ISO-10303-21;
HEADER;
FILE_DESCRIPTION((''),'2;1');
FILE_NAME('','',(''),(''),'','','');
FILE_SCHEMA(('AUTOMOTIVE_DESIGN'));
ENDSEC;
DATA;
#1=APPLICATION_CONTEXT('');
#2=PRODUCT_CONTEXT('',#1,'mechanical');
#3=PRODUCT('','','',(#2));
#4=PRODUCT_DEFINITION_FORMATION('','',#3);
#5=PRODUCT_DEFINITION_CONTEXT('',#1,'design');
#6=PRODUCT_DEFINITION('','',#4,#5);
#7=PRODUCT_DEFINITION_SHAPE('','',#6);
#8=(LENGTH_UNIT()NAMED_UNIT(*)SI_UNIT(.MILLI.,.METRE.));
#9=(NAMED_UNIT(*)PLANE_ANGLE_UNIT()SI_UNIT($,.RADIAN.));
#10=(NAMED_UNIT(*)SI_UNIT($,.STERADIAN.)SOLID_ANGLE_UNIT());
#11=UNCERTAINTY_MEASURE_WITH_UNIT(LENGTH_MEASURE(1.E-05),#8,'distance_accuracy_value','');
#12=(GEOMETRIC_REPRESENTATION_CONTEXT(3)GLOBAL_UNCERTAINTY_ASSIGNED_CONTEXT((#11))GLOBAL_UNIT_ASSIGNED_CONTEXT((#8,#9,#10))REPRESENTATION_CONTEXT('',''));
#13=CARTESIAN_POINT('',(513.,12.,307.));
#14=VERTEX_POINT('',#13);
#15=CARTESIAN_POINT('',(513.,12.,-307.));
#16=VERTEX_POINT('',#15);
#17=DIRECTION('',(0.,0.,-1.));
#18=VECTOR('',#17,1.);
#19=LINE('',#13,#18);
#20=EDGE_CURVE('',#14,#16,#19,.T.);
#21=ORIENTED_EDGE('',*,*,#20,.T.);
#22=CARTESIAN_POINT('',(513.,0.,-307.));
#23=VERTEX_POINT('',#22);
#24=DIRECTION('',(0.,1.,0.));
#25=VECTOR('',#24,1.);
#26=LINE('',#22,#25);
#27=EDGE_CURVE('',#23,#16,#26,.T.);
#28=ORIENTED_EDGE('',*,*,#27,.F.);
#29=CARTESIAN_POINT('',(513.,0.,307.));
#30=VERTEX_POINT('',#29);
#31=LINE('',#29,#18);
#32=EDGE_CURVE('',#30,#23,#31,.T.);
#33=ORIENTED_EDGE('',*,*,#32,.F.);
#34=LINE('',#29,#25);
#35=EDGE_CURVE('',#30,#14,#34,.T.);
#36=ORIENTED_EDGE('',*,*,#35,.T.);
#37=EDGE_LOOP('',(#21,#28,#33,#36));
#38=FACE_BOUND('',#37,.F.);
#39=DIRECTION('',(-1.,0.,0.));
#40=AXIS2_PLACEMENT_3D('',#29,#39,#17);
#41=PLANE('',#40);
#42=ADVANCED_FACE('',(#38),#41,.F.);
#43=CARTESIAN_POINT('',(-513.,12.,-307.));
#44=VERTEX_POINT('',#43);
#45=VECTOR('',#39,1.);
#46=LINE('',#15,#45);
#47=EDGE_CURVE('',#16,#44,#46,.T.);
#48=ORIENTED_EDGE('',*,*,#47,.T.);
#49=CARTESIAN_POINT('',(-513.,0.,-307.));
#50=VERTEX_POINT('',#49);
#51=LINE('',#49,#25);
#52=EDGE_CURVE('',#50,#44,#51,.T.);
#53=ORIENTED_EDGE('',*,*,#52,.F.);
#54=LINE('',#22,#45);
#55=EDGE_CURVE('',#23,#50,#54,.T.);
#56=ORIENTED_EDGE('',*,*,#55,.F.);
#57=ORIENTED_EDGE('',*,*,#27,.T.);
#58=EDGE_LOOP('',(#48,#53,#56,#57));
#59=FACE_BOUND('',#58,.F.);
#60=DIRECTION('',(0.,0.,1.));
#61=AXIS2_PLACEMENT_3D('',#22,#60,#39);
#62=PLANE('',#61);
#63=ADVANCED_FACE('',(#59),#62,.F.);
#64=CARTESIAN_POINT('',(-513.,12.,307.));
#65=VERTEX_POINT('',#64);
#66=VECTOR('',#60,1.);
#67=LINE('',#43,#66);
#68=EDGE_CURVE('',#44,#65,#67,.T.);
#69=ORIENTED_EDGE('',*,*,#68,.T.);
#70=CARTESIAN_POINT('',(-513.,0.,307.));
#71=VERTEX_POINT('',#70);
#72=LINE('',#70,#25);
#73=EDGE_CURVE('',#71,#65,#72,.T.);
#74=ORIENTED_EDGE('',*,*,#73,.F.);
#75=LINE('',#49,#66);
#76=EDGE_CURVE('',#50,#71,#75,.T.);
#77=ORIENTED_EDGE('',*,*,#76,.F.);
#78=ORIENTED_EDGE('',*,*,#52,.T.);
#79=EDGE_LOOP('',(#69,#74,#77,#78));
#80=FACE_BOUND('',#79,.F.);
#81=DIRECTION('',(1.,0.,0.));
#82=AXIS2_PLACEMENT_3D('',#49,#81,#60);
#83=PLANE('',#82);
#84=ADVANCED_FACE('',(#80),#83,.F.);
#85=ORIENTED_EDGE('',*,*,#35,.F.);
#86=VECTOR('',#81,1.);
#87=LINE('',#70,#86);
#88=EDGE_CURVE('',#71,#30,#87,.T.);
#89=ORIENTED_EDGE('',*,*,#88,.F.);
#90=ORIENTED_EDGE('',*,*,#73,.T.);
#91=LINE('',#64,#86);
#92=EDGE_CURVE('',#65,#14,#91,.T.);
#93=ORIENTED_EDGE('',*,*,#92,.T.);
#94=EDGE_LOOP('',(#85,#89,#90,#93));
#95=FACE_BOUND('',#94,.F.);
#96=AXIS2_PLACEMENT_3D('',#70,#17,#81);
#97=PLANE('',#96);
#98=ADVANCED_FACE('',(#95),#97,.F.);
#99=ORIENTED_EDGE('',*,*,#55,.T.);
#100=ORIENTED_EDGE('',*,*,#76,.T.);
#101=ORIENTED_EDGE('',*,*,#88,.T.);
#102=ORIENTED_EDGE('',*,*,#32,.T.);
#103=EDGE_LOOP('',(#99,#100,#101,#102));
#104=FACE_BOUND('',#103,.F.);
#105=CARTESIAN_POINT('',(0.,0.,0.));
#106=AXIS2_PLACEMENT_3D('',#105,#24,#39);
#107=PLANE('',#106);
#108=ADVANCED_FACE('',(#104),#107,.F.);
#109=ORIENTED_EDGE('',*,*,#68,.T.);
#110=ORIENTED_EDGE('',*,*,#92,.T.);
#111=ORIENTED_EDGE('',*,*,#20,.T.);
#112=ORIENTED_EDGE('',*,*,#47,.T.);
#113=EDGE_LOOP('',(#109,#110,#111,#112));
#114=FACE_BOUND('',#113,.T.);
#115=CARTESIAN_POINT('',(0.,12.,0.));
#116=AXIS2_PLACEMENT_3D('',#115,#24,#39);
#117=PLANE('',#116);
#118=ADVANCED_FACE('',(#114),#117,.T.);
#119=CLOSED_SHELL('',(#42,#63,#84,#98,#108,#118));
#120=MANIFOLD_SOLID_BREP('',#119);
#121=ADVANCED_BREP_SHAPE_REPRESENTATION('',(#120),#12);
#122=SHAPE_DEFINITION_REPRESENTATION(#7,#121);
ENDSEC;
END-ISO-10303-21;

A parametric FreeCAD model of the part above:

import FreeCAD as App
import Part
import Sketcher

V = App.Vector
Q = App.Units.Quantity


def add_polygon(sketch, points):
    """Adds a closed chain of lines whose ends are joined by coincident constraints."""
    first, n = sketch.GeometryCount, len(points)
    for a, b in zip(points, points[1:] + points[:1]):
        sketch.addGeometry(Part.LineSegment(App.Vector(*a, 0), App.Vector(*b, 0)), False)
    for i in range(n):
        sketch.addConstraint(Sketcher.Constraint("Coincident", first + i, 2, first + (i + 1) % n, 1))

doc = App.newDocument("Part")
body = doc.addObject("PartDesign::Body", "Body")

# Sketch on XZ plane
sketch1 = body.newObject("Sketcher::SketchObject", "Sketch")
sketch1.AttachmentSupport = (doc.getObject("XZ_Plane"), [""])
sketch1.MapMode = "FlatFace"
add_polygon(sketch1, [(-513, -307), (-513, 307), (513, 307), (513, -307)])  # lines 0-3
sketch1.addConstraint([
    Sketcher.Constraint("Vertical", 0),
    Sketcher.Constraint("Horizontal", 1),
    Sketcher.Constraint("Vertical", 2),
    Sketcher.Constraint("Horizontal", 3),
    Sketcher.Constraint("Symmetric", 0, 2, 2, 2, -1, 1),
    Sketcher.Constraint("DistanceX", 1, 1, 1, 2, Q("1026 mm")),
    Sketcher.Constraint("DistanceY", 0, 1, 0, 2, Q("614 mm")),
])
pad1 = body.newObject("PartDesign::Pad", "Pad")
pad1.Profile = sketch1
pad1.Length = 12
pad1.Reversed = True

doc.recompute()
